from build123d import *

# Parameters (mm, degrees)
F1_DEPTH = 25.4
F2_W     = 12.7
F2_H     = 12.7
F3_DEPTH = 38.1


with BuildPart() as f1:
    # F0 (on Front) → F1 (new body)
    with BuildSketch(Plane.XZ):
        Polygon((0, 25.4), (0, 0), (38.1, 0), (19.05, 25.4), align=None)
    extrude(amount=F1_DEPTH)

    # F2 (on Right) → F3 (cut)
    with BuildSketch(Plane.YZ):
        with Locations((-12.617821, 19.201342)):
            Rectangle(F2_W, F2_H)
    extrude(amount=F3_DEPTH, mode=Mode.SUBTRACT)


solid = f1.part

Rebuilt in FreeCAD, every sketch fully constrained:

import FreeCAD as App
import Part
import Sketcher

V = App.Vector
Q = App.Units.Quantity


def add_polygon(sketch, points):
    """Adds a closed chain of lines whose ends are joined by coincident constraints."""
    first, n = sketch.GeometryCount, len(points)
    for a, b in zip(points, points[1:] + points[:1]):
        sketch.addGeometry(Part.LineSegment(App.Vector(*a, 0), App.Vector(*b, 0)), False)
    for i in range(n):
        sketch.addConstraint(Sketcher.Constraint("Coincident", first + i, 2, first + (i + 1) % n, 1))

doc = App.newDocument("Part")
params = doc.addObject("Spreadsheet::Sheet", "Params")
for row, (alias, value) in enumerate([
    ("sketch1_height", "1 in"),
    ("sketch1_width", "1.5 in"),
    ("sketch1_width2", "0.75 in"),
    ("pad1_length", "1 in"),
    ("sketch2_width", "0.5 in"),
    ("pocket1_length", "1.5 in"),
], start=1):
    params.set(f"A{row}", alias)
    params.set(f"B{row}", "=" + value)
    params.setAlias(f"B{row}", alias)

body = doc.addObject("PartDesign::Body", "Body")

sketch1 = body.newObject("Sketcher::SketchObject", "Sketch")
sketch1.AttachmentSupport = (doc.getObject("XZ_Plane"), [""])
sketch1.MapMode = "FlatFace"
add_polygon(sketch1, [(0, 25.4), (0, 0), (38.1, 0), (19.05, 25.4)])
sketch1.addConstraint(Sketcher.Constraint("Vertical", 0))
sketch1.addConstraint(Sketcher.Constraint("Horizontal", 1))
sketch1.addConstraint(Sketcher.Constraint("Horizontal", 3))
sketch1.addConstraint(Sketcher.Constraint("Coincident", 0, 2, -1, 1))
sketch1.addConstraint(Sketcher.Constraint("DistanceY", 0, 2, 0, 1, Q("1 in")))
sketch1.addConstraint(Sketcher.Constraint("DistanceX", 1, 1, 1, 2, Q("1.5 in")))
sketch1.addConstraint(Sketcher.Constraint("DistanceX", 3, 2, 3, 1, Q("0.75 in")))
sketch1.setExpression("Constraints[8]", "Params.sketch1_height")
sketch1.setExpression("Constraints[9]", "Params.sketch1_width")
sketch1.setExpression("Constraints[10]", "Params.sketch1_width2")
pad1 = body.newObject("PartDesign::Pad", "Pad")
pad1.Profile = sketch1
pad1.setExpression("Length", "Params.pad1_length")

sketch2 = body.newObject("Sketcher::SketchObject", "Sketch001")
sketch2.AttachmentSupport = (doc.getObject("YZ_Plane"), [""])
sketch2.MapMode = "FlatFace"
add_polygon(sketch2, [(-18.967821, 25.551342), (-18.967821, 12.851342), (-6.267821, 12.851342), (-6.267821, 25.551342)])
sketch2.addConstraint(Sketcher.Constraint("Vertical", 0))
sketch2.addConstraint(Sketcher.Constraint("Horizontal", 1))
sketch2.addConstraint(Sketcher.Constraint("Vertical", 2))
sketch2.addConstraint(Sketcher.Constraint("Horizontal", 3))
sketch2.addConstraint(Sketcher.Constraint("Equal", 3, 0))
sketch2.addConstraint(Sketcher.Constraint("DistanceX", 1, 1, 1, 2, Q("0.5 in")))
sketch2.addConstraint(Sketcher.Constraint("DistanceX", 0, 2, -1, 1, Q("18.967821 mm")))
sketch2.addConstraint(Sketcher.Constraint("DistanceY", -1, 1, 0, 2, Q("12.851342 mm")))
sketch2.setExpression("Constraints[9]", "Params.sketch2_width")
pocket1 = body.newObject("PartDesign::Pocket", "Pocket")
pocket1.Profile = sketch2
pocket1.setExpression("Length", "Params.pocket1_length")
pocket1.Reversed = True

doc.recompute()
